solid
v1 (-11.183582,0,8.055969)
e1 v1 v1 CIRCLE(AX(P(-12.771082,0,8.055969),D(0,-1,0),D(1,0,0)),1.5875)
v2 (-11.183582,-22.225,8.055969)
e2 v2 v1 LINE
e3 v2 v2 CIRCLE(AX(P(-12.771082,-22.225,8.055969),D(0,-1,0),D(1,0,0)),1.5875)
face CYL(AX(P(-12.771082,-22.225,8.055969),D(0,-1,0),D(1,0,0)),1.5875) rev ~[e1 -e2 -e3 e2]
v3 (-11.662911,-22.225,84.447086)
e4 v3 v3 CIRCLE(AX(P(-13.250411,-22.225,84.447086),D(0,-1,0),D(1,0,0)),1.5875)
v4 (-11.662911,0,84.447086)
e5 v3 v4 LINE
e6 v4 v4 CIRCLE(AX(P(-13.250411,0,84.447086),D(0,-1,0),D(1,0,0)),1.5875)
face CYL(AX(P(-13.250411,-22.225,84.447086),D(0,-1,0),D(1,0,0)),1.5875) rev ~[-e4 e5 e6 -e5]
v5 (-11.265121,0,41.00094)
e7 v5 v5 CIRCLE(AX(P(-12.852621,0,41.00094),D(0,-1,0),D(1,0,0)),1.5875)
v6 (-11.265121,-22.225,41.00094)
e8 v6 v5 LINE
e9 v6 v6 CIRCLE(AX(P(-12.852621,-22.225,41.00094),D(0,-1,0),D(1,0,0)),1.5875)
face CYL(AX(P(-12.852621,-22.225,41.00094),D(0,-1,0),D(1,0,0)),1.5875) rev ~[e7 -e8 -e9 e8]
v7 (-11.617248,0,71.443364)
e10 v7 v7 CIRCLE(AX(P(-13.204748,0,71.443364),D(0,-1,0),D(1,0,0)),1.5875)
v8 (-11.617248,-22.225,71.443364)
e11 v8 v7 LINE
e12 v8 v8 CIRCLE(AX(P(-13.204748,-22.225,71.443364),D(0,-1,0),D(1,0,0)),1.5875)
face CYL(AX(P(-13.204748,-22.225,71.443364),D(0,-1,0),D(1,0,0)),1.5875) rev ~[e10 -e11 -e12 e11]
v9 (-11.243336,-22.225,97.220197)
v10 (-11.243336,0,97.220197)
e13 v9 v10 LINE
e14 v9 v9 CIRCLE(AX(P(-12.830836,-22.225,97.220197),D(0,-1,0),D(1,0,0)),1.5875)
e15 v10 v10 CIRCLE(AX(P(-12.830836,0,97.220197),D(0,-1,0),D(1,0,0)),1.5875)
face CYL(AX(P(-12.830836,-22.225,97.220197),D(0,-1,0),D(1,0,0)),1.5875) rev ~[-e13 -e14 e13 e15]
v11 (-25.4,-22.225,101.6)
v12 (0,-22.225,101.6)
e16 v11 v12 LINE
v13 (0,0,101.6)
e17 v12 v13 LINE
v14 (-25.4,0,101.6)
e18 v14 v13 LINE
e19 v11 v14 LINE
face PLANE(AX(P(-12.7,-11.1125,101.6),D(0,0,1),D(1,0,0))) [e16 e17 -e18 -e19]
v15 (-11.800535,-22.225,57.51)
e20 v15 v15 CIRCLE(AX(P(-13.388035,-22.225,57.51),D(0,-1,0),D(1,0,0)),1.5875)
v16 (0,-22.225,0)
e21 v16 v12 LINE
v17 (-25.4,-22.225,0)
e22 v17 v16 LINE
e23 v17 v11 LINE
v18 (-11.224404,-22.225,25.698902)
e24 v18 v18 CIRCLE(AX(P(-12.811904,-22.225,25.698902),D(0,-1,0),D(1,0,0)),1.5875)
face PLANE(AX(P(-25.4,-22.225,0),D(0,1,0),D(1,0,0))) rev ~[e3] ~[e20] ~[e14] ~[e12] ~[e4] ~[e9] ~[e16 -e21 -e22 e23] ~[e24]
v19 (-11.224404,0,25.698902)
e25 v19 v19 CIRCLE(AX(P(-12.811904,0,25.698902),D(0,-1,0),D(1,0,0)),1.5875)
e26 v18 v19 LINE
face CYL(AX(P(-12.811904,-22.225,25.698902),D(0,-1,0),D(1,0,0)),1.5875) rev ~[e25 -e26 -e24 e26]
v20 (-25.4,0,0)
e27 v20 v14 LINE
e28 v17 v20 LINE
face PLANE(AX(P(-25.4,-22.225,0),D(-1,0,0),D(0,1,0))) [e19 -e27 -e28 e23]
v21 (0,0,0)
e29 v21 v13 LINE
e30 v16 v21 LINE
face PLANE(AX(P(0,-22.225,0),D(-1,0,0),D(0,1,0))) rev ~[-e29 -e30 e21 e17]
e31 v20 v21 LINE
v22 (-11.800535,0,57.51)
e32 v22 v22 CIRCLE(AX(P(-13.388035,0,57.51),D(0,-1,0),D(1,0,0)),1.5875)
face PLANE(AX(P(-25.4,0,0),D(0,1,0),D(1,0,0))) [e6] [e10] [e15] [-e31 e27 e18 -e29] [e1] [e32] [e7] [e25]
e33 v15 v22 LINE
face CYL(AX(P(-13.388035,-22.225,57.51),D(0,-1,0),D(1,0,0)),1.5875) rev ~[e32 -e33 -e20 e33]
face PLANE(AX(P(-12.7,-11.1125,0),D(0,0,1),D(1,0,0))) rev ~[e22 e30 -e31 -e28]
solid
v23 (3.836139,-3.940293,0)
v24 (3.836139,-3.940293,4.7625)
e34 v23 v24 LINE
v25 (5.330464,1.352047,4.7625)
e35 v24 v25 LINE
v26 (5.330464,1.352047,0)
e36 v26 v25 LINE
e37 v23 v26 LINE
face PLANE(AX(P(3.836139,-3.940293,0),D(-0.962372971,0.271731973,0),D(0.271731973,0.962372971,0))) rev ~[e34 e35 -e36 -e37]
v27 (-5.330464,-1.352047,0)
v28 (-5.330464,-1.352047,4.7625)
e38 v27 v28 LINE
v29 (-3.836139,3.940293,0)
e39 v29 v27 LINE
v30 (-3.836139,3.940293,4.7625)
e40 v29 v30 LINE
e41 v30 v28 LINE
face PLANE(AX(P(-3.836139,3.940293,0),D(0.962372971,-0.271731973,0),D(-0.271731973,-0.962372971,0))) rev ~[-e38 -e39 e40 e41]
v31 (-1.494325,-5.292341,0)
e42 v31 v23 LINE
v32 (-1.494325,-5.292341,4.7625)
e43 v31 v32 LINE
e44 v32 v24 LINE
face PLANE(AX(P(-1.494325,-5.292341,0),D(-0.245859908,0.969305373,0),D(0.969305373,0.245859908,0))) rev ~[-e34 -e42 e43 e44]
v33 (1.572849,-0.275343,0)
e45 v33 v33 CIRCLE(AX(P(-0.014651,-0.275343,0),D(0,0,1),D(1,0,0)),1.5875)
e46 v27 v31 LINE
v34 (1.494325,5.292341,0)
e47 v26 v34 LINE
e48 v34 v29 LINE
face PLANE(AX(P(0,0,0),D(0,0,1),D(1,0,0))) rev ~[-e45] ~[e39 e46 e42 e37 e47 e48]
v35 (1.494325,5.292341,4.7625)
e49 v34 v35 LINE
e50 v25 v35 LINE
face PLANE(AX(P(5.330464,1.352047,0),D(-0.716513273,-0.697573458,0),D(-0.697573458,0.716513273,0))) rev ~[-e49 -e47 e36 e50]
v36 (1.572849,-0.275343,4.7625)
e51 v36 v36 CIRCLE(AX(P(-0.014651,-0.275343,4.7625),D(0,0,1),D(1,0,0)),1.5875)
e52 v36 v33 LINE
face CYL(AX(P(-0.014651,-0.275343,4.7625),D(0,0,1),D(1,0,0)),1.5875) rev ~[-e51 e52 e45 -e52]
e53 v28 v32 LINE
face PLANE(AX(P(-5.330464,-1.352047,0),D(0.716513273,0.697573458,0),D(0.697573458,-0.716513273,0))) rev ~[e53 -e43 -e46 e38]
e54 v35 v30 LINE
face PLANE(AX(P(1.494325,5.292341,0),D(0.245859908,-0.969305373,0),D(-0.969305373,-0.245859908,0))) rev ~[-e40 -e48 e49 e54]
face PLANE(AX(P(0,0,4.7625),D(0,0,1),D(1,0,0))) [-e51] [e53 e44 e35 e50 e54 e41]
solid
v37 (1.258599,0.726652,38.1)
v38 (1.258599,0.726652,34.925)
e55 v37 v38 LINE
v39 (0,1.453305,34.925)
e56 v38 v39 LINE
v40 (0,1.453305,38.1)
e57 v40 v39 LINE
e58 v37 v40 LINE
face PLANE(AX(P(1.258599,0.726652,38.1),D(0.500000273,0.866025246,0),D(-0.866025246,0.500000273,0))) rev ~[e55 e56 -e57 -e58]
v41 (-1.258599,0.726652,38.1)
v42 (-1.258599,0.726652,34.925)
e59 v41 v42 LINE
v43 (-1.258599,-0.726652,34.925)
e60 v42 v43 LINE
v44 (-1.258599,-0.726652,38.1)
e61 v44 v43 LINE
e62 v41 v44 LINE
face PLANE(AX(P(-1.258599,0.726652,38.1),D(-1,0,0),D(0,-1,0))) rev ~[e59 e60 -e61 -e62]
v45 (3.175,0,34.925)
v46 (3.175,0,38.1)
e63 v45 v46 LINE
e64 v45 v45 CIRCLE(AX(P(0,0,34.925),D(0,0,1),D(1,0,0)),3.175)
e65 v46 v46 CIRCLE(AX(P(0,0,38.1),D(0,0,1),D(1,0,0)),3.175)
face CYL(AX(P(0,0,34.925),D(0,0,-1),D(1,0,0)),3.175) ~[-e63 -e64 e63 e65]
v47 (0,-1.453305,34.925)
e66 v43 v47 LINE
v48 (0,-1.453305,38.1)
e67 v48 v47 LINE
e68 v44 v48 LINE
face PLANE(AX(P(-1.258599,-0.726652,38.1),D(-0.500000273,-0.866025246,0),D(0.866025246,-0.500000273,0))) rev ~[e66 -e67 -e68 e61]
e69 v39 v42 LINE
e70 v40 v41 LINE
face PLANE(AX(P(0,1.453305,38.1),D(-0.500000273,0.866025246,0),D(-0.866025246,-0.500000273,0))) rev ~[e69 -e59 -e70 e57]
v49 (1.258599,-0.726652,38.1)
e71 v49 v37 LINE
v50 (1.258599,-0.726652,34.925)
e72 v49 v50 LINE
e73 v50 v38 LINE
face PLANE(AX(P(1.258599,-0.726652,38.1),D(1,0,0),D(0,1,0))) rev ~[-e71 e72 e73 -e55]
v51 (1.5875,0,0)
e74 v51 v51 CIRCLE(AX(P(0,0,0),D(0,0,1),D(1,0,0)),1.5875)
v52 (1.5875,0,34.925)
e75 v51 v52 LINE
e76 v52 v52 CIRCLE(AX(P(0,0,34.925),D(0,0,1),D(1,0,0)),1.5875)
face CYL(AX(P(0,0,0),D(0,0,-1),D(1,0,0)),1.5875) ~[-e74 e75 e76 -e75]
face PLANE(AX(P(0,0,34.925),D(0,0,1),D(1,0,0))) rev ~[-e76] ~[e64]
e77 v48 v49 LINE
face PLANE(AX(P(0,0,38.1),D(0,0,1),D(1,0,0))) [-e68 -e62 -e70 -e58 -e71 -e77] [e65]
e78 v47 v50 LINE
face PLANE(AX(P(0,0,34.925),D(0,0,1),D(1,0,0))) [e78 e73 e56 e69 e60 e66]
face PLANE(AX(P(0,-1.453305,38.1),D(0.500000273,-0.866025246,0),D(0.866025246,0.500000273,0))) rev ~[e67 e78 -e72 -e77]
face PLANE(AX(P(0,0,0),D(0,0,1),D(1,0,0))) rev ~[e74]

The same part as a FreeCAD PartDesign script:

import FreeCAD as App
import Part
import Sketcher
from FreeCAD import Vector
Q = App.Units.Quantity

doc = App.newDocument("Part")
body = doc.addObject("PartDesign::Body", "Body")

sketch1 = body.newObject("Sketcher::SketchObject", "Sketch")
sketch1.AttachmentSupport = (doc.getObject("XY_Plane"), [""])
sketch1.MapMode = "FlatFace"
sketch1.addGeometry([
    Part.LineSegment(Vector(-5, -1, 0), Vector(-1, -5, 0)),
    Part.LineSegment(Vector(-1, -5, 0), Vector(4, -4, 0)),
    Part.LineSegment(Vector(4, -4, 0), Vector(5, 1, 0)),
    Part.LineSegment(Vector(5, 1, 0), Vector(1, 5, 0)),
    Part.LineSegment(Vector(1, 5, 0), Vector(-4, 4, 0)),
    Part.LineSegment(Vector(-4, 4, 0), Vector(-5, -1, 0)),
], False)
sketch1.addConstraint([
    Sketcher.Constraint("Coincident", 0, 2, 1, 1),
    Sketcher.Constraint("Coincident", 1, 2, 2, 1),
    Sketcher.Constraint("Coincident", 2, 2, 3, 1),
    Sketcher.Constraint("Coincident", 3, 2, 4, 1),
    Sketcher.Constraint("Coincident", 4, 2, 5, 1),
    Sketcher.Constraint("Coincident", 5, 2, 0, 1),
    Sketcher.Constraint("Symmetric", 0, 2, 3, 2, -1, 1),
    Sketcher.Constraint("Symmetric", 1, 2, 4, 2, -1, 1),
    Sketcher.Constraint("Symmetric", 2, 2, 5, 2, -1, 1),
    Sketcher.Constraint("Equal", 0, 1),
    Sketcher.Constraint("Equal", 1, 2),
    Sketcher.Constraint("Distance", 0, 5.499262),
    Sketcher.Constraint("DistanceY", 0, 2, -1, 1, 5.292341),
    Sketcher.Constraint("DistanceX", -1, 1, 1, 2, 3.836139),
    Sketcher.Constraint("DistanceY", 0, 2, 1, 2, 1.352048),
])
pad1 = body.newObject("PartDesign::Pad", "Pad")
pad1.Profile = sketch1
pad1.Length = Q("0.1875 in")

sketch2 = body.newObject("Sketcher::SketchObject", "Sketch001")
sketch2.AttachmentSupport = (doc.getObject("XY_Plane"), [""])
sketch2.MapMode = "FlatFace"
sketch2.AttachmentOffset = App.Placement(Vector(0, 0, 0.1875 * 25.4), App.Rotation())
sketch2.addGeometry(Part.Circle(Vector(0, -0.3, 0), Vector(0, 0, 1), 1.6), False)
sketch2.addConstraint([
    Sketcher.Constraint("Diameter", 0, Q("0.125 in")),
    Sketcher.Constraint("DistanceX", 0, 3, -1, 1, 0.014651),
    Sketcher.Constraint("DistanceY", 0, 3, -1, 1, 0.275343),
])
pocket1 = body.newObject("PartDesign::Pocket", "Pocket")
pocket1.Profile = sketch2
pocket1.Length = Q("1 in")
body2 = doc.addObject("PartDesign::Body", "Body001")

sketch3 = body2.newObject("Sketcher::SketchObject", "Sketch002")
sketch3.AttachmentSupport = (doc.getObject("XY_Plane001"), [""])
sketch3.MapMode = "FlatFace"
sketch3.addGeometry(Part.Circle(Vector(0, 0, 0), Vector(0, 0, 1), 1.6), False)
sketch3.addConstraint([
    Sketcher.Constraint("Coincident", 0, 3, -1, 1),
    Sketcher.Constraint("Diameter", 0, Q("0.125 in")),
])
pad2 = body2.newObject("PartDesign::Pad", "Pad001")
pad2.Profile = sketch3
pad2.Length = Q("1.375 in")

sketch4 = body2.newObject("Sketcher::SketchObject", "Sketch003")
sketch4.AttachmentSupport = (doc.getObject("XY_Plane001"), [""])
sketch4.MapMode = "FlatFace"
sketch4.AttachmentOffset = App.Placement(Vector(0, 0, 1.375 * 25.4), App.Rotation())
sketch4.addGeometry(Part.Circle(Vector(0, 0, 0), Vector(0, 0, 1), 3.2), False)
sketch4.addConstraint([
    Sketcher.Constraint("Coincident", 0, 3, -1, 1),
    Sketcher.Constraint("Diameter", 0, Q("0.25 in")),
])
pad3 = body2.newObject("PartDesign::Pad", "Pad002")
pad3.Profile = sketch4
pad3.Length = Q("0.125 in")

sketch5 = body2.newObject("Sketcher::SketchObject", "Sketch004")
sketch5.AttachmentSupport = (doc.getObject("XY_Plane001"), [""])
sketch5.MapMode = "FlatFace"
sketch5.AttachmentOffset = App.Placement(Vector(0, 0, 1.5 * 25.4), App.Rotation())
sketch5.addGeometry([
    Part.LineSegment(Vector(1.3, -0.7, 0), Vector(1.3, 0.7, 0)),
    Part.LineSegment(Vector(1.3, 0.7, 0), Vector(0, 1.5, 0)),
    Part.LineSegment(Vector(0, 1.5, 0), Vector(-1.3, 0.7, 0)),
    Part.LineSegment(Vector(-1.3, 0.7, 0), Vector(-1.3, -0.7, 0)),
    Part.LineSegment(Vector(-1.3, -0.7, 0), Vector(0, -1.5, 0)),
    Part.LineSegment(Vector(0, -1.5, 0), Vector(1.3, -0.7, 0)),
], False)
sketch5.addConstraint([
    Sketcher.Constraint("Coincident", 0, 2, 1, 1),
    Sketcher.Constraint("Coincident", 1, 2, 2, 1),
    Sketcher.Constraint("Coincident", 2, 2, 3, 1),
    Sketcher.Constraint("Coincident", 3, 2, 4, 1),
    Sketcher.Constraint("Coincident", 4, 2, 5, 1),
    Sketcher.Constraint("Coincident", 5, 2, 0, 1),
    Sketcher.Constraint("Vertical", 0),
    Sketcher.Constraint("Vertical", 3),
    Sketcher.Constraint("Symmetric", 0, 2, 3, 2, -1, 1),
    Sketcher.Constraint("Symmetric", 1, 2, 4, 2, -1, 1),
    Sketcher.Constraint("PointOnObject", 1, 2, -2),
    Sketcher.Constraint("Parallel", 2, 5),
    Sketcher.Constraint("Horizontal", 0, 2, 2, 2),
    Sketcher.Constraint("Angle", 1, Q("149.999982 deg")),
    Sketcher.Constraint("DistanceX", -1, 1, 0, 2, 1.258599),
    Sketcher.Constraint("DistanceY", 0, 1, 0, 2, 1.453304),
])
pocket2 = body2.newObject("PartDesign::Pocket", "Pocket001")
pocket2.Profile = sketch5
pocket2.Length = Q("0.125 in")
body3 = doc.addObject("PartDesign::Body", "Body002")

sketch6 = body3.newObject("Sketcher::SketchObject", "Sketch005")
sketch6.AttachmentSupport = (doc.getObject("XY_Plane002"), [""])
sketch6.MapMode = "FlatFace"
sketch6.addGeometry([
    Part.LineSegment(Vector(-25, 0, 0), Vector(-25, -22, 0)),
    Part.LineSegment(Vector(-25, -22, 0), Vector(0, -22, 0)),
    Part.LineSegment(Vector(0, -22, 0), Vector(0, 0, 0)),
    Part.LineSegment(Vector(0, 0, 0), Vector(-25, 0, 0)),
], False)
sketch6.addConstraint([
    Sketcher.Constraint("Coincident", 0, 2, 1, 1),
    Sketcher.Constraint("Coincident", 1, 2, 2, 1),
    Sketcher.Constraint("Coincident", 2, 2, 3, 1),
    Sketcher.Constraint("Coincident", 3, 2, 0, 1),
    Sketcher.Constraint("Vertical", 0),
    Sketcher.Constraint("Horizontal", 1),
    Sketcher.Constraint("Vertical", 2),
    Sketcher.Constraint("Horizontal", 3),
    Sketcher.Constraint("Coincident", 2, 2, -1, 1),
    Sketcher.Constraint("DistanceX", 1, 1, 1, 2, Q("1 in")),
    Sketcher.Constraint("DistanceY", 0, 2, 0, 1, Q("0.875 in")),
])
pad4 = body3.newObject("PartDesign::Pad", "Pad003")
pad4.Profile = sketch6
pad4.Length = Q("4 in")

sketch7 = body3.newObject("Sketcher::SketchObject", "Sketch006")
sketch7.AttachmentSupport = (doc.getObject("XZ_Plane002"), [""])
sketch7.MapMode = "FlatFace"
sketch7.AttachmentOffset = App.Placement(Vector(0, 0, 0.875 * 25.4), App.Rotation())
sketch7.addGeometry([
    Part.Circle(Vector(-12.8, 8.1, 0), Vector(0, 0, 1), 1.6),
    Part.Circle(Vector(-12.8, 25.7, 0), Vector(0, 0, 1), 1.6),
    Part.Circle(Vector(-12.9, 41, 0), Vector(0, 0, 1), 1.6),
    Part.Circle(Vector(-13.4, 57.5, 0), Vector(0, 0, 1), 1.6),
    Part.Circle(Vector(-13.2, 71.4, 0), Vector(0, 0, 1), 1.6),
    Part.Circle(Vector(-13.3, 84.4, 0), Vector(0, 0, 1), 1.6),
    Part.Circle(Vector(-12.8, 97.2, 0), Vector(0, 0, 1), 1.6),
], False)
sketch7.addConstraint([
    Sketcher.Constraint("Equal", 0, 1),
    Sketcher.Constraint("Equal", 1, 2),
    Sketcher.Constraint("Equal", 2, 3),
    Sketcher.Constraint("Equal", 3, 4),
    Sketcher.Constraint("Equal", 4, 5),
    Sketcher.Constraint("Equal", 5, 6),
    Sketcher.Constraint("Diameter", 0, Q("0.125 in")),
    Sketcher.Constraint("DistanceY", -1, 1, 3, 3, 57.51),
    Sketcher.Constraint("DistanceX", 3, 3, 6, 3, 0.557199),
    Sketcher.Constraint("DistanceY", -1, 1, 0, 3, 8.055969),
    Sketcher.Constraint("DistanceX", 2, 3, -1, 1, 12.852621),
    Sketcher.Constraint("DistanceY", -1, 1, 2, 3, 41.00094),
    Sketcher.Constraint("DistanceX", 5, 3, -1, 1, 13.250411),
    Sketcher.Constraint("DistanceX", 2, 3, 0, 3, 0.081539),
    Sketcher.Constraint("DistanceX", 3, 3, 1, 3, 0.576131),
    Sketcher.Constraint("DistanceY", 4, 3, 5, 3, 13.003722),
    Sketcher.Constraint("DistanceY", 5, 3, 6, 3, 12.773111),
    Sketcher.Constraint("DistanceX", 1, 3, -1, 1, 12.811904),
    Sketcher.Constraint("DistanceY", -1, 1, 1, 3, 25.698902),
    Sketcher.Constraint("DistanceX", 4, 3, -1, 1, 13.204748),
    Sketcher.Constraint("DistanceY", -1, 1, 4, 3, 71.443364),
])
pocket3 = body3.newObject("PartDesign::Pocket", "Pocket002")
pocket3.Profile = sketch7
pocket3.Length = Q("1 in")

doc.recompute()
